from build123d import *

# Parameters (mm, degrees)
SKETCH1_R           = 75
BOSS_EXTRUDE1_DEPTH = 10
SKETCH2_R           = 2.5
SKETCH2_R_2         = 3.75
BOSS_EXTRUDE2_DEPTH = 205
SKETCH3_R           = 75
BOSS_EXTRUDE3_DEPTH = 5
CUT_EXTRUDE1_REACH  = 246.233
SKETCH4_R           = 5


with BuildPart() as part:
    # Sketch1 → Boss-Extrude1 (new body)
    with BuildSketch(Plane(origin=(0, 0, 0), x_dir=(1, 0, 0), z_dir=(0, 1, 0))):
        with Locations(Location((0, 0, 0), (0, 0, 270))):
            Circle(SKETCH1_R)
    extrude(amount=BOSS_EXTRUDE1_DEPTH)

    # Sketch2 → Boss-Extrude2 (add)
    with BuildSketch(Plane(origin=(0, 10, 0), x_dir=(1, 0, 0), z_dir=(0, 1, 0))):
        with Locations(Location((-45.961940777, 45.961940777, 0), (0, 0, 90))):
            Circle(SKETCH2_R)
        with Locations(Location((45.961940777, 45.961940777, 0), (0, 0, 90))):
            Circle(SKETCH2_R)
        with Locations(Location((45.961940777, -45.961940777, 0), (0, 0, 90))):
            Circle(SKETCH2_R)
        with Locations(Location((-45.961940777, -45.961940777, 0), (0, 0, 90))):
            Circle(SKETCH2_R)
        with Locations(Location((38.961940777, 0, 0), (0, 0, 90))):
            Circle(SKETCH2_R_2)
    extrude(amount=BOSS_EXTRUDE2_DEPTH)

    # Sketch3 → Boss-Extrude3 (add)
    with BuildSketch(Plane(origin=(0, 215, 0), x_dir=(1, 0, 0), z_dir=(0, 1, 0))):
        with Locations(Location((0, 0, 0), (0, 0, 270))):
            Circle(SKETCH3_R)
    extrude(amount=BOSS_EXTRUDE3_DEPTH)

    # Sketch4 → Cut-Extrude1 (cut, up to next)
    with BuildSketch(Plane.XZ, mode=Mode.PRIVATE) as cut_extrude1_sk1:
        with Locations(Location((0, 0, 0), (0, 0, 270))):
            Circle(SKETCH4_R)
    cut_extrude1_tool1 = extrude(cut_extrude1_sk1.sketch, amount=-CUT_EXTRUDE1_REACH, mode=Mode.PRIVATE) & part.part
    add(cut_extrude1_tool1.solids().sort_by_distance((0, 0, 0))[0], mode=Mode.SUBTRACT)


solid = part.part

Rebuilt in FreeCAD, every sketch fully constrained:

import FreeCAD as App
import Part
import Sketcher
Q = App.Units.Quantity

doc = App.newDocument("Part")
body = doc.addObject("PartDesign::Body", "Body")

sketch1 = body.newObject("Sketcher::SketchObject", "Sketch")
sketch1.AttachmentSupport = (doc.getObject("XZ_Plane"), [""])
sketch1.MapMode = "FlatFace"
sketch1.addGeometry(Part.Circle(App.Vector(0, 0, 0), App.Vector(0, 0, 1), 75), False)
sketch1.addConstraint(Sketcher.Constraint("Coincident", 0, 3, -1, 1))
sketch1.addConstraint(Sketcher.Constraint("Diameter", 0, Q("150 mm")))
pad1 = body.newObject("PartDesign::Pad", "Pad")
pad1.Profile = sketch1
pad1.Length = 10
pad1.Reversed = True

sketch2 = body.newObject("Sketcher::SketchObject", "Sketch001")
sketch2.AttachmentSupport = (doc.getObject("XZ_Plane"), [""])
sketch2.MapMode = "FlatFace"
sketch2.AttachmentOffset = App.Placement(App.Vector(0, 0, -10), App.Rotation())
sketch2.addGeometry(Part.Circle(App.Vector(-46, -46, 0), App.Vector(0, 0, 1), 2.5), False)
sketch2.addGeometry(Part.Circle(App.Vector(46, -46, 0), App.Vector(0, 0, 1), 2.5), False)
sketch2.addGeometry(Part.Circle(App.Vector(46, 46, 0), App.Vector(0, 0, 1), 2.5), False)
sketch2.addGeometry(Part.Circle(App.Vector(-46, 46, 0), App.Vector(0, 0, 1), 2.5), False)
sketch2.addGeometry(Part.Circle(App.Vector(39, 0, 0), App.Vector(0, 0, 1), 3.8), False)
sketch2.addConstraint(Sketcher.Constraint("Equal", 0, 1))
sketch2.addConstraint(Sketcher.Constraint("Equal", 1, 2))
sketch2.addConstraint(Sketcher.Constraint("Equal", 2, 3))
sketch2.addConstraint(Sketcher.Constraint("Symmetric", 0, 3, 2, 3, -1, 1))
sketch2.addConstraint(Sketcher.Constraint("Symmetric", 1, 3, 3, 3, -1, 1))
sketch2.addConstraint(Sketcher.Constraint("Symmetric", 0, 3, 1, 3, -2))
sketch2.addConstraint(Sketcher.Constraint("PointOnObject", 4, 3, -1))
sketch2.addConstraint(Sketcher.Constraint("Diameter", 0, Q("5 mm")))
sketch2.addConstraint(Sketcher.Constraint("Diameter", 4, Q("7.5 mm")))
sketch2.addConstraint(Sketcher.Constraint("DistanceX", 4, 3, 1, 3, Q("7 mm")))
sketch2.addConstraint(Sketcher.Constraint("DistanceX", 0, 3, -1, 1, Q("45.961941 mm")))
sketch2.addConstraint(Sketcher.Constraint("DistanceY", 0, 3, -1, 1, Q("45.961941 mm")))
pad2 = body.newObject("PartDesign::Pad", "Pad001")
pad2.Profile = sketch2
pad2.Length = 205
pad2.Reversed = True

sketch3 = body.newObject("Sketcher::SketchObject", "Sketch002")
sketch3.AttachmentSupport = (doc.getObject("XZ_Plane"), [""])
sketch3.MapMode = "FlatFace"
sketch3.AttachmentOffset = App.Placement(App.Vector(0, 0, -215), App.Rotation())
sketch3.addGeometry(Part.Circle(App.Vector(0, 0, 0), App.Vector(0, 0, 1), 75), False)
sketch3.addConstraint(Sketcher.Constraint("Coincident", 0, 3, -1, 1))
sketch3.addConstraint(Sketcher.Constraint("Diameter", 0, Q("150 mm")))
pad3 = body.newObject("PartDesign::Pad", "Pad002")
pad3.Profile = sketch3
pad3.Length = 5
pad3.Reversed = True

sketch4 = body.newObject("Sketcher::SketchObject", "Sketch003")
sketch4.AttachmentSupport = (doc.getObject("XZ_Plane"), [""])
sketch4.MapMode = "FlatFace"
sketch4.addGeometry(Part.Circle(App.Vector(0, 0, 0), App.Vector(0, 0, 1), 5), False)
sketch4.addConstraint(Sketcher.Constraint("Coincident", 0, 3, -1, 1))
sketch4.addConstraint(Sketcher.Constraint("Diameter", 0, Q("10 mm")))
pocket1 = body.newObject("PartDesign::Pocket", "Pocket")
pocket1.Profile = sketch4
pocket1.Type = "UpToFirst"

doc.recompute()
